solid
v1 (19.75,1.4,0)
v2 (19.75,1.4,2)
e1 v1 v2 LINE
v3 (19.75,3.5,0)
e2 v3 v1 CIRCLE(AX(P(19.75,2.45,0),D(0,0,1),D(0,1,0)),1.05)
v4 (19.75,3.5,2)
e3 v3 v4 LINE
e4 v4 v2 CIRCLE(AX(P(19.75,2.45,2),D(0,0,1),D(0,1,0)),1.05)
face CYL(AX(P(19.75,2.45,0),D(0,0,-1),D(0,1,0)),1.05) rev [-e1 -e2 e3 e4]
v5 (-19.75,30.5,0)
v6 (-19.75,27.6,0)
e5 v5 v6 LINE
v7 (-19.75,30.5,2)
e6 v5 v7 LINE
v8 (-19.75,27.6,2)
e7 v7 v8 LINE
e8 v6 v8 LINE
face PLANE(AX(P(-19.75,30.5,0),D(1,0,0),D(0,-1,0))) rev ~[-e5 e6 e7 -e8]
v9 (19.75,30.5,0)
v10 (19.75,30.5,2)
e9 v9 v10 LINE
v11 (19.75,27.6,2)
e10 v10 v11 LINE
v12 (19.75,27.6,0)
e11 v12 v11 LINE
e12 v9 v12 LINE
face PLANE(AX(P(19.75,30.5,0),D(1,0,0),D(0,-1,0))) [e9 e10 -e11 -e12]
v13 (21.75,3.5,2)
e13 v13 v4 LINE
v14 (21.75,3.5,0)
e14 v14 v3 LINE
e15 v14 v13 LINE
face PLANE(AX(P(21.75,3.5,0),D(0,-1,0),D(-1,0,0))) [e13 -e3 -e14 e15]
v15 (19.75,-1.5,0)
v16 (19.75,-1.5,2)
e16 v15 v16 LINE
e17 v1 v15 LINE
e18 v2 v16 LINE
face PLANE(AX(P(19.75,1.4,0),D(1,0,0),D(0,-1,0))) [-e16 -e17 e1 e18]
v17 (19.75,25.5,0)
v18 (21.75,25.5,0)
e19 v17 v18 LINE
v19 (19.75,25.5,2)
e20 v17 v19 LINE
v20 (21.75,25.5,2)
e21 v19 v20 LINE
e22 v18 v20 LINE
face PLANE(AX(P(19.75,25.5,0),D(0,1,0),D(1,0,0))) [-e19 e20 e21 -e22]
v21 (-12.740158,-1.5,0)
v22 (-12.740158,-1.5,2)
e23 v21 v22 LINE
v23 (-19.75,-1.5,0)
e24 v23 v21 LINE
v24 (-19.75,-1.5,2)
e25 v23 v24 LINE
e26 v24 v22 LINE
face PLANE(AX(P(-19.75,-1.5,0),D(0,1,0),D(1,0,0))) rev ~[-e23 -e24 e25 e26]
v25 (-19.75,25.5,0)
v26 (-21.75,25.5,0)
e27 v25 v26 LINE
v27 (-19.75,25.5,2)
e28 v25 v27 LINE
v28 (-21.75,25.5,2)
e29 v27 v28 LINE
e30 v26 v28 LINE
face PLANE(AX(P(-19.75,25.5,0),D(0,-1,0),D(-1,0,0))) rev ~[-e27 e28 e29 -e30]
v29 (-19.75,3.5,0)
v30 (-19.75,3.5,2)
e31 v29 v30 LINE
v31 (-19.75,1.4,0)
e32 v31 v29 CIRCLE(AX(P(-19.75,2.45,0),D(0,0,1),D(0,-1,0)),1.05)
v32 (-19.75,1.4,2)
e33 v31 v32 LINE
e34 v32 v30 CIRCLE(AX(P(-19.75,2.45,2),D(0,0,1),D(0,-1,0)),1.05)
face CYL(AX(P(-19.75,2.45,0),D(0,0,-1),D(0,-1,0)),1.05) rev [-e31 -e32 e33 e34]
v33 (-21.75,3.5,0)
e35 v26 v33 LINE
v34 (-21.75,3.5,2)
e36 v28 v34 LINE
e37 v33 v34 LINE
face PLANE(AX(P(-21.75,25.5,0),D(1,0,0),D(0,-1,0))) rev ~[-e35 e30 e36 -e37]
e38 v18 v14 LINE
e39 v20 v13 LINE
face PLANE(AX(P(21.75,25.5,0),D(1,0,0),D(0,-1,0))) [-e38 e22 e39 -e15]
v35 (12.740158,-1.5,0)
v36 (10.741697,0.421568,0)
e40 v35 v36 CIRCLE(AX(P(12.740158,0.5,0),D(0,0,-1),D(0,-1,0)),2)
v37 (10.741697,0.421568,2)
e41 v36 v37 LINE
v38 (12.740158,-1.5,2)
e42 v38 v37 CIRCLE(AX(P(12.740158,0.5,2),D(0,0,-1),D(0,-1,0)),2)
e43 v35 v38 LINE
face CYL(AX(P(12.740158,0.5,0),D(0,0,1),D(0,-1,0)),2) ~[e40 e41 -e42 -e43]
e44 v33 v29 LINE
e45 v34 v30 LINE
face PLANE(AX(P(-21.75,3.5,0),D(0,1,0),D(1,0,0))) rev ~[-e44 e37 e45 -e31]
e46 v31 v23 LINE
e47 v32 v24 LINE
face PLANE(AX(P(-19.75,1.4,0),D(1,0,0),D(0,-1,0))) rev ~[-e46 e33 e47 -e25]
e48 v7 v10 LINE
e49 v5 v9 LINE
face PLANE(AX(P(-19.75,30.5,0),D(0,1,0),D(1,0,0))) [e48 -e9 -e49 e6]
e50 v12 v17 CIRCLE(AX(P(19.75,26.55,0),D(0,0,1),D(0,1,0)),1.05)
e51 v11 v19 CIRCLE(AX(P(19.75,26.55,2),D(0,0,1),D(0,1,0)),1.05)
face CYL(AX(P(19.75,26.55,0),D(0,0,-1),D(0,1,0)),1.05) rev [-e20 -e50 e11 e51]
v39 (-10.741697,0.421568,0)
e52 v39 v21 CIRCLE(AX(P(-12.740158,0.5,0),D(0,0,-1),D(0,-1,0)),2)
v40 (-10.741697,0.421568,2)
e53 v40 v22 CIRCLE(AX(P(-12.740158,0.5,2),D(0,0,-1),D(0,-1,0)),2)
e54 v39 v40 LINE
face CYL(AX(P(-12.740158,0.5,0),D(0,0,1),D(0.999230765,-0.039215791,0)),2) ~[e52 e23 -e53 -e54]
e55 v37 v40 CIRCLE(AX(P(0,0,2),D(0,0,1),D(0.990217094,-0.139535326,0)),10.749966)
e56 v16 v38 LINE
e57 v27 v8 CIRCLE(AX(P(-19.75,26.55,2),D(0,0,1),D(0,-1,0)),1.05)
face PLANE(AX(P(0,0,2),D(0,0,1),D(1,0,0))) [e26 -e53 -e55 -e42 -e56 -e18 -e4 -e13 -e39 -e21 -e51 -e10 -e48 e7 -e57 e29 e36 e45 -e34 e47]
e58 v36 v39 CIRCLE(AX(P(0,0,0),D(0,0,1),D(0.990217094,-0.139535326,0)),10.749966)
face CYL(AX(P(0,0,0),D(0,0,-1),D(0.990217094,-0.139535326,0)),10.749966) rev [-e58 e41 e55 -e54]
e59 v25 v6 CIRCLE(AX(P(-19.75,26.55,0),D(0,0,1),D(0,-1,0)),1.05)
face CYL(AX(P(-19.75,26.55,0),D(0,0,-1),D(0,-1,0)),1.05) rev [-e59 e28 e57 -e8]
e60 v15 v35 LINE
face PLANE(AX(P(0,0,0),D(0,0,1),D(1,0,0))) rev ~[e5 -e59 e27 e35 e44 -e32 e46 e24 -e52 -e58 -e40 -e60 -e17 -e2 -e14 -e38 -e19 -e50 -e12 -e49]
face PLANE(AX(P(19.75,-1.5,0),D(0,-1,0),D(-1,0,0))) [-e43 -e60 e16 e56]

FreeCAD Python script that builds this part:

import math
import FreeCAD as App
import Part
import Sketcher
from FreeCAD import Vector


def edges_at(feature, points):
    """Names of the edges that pass closest to the given points."""
    edges = feature.Shape.Edges
    near = lambda p: min(range(len(edges)), key=lambda i: edges[i].distToShape(Part.Vertex(*p))[0])
    return sorted({f"Edge{near(p) + 1}" for p in points})

doc = App.newDocument("Part")
body = doc.addObject("PartDesign::Body", "Body")

# Sketch on XY plane
sketch1 = doc.addObject("Sketcher::SketchObject", "Sketch")
body.addObject(sketch1)
sketch1.AttachmentSupport = (doc.XY_Plane, [""])
sketch1.MapMode = "FlatFace"
sketch1.addGeometry(Part.LineSegment(Vector(19.8, 30.5, 0), Vector(-19.8, 30.5, 0)), False)
sketch1.addGeometry(Part.LineSegment(Vector(-19.8, 30.5, 0), Vector(-19.8, 27.6, 0)), False)
sketch1.addGeometry(Part.ArcOfCircle(Part.Circle(Vector(-19.8, 26.6, 0), Vector(0, 0, 1), 1.1), math.radians(-90), math.radians(90)), False)
sketch1.addGeometry(Part.LineSegment(Vector(-19.8, 25.5, 0), Vector(-21.8, 25.5, 0)), False)
sketch1.addGeometry(Part.LineSegment(Vector(-21.8, 25.5, 0), Vector(-21.8, 3.5, 0)), False)
sketch1.addGeometry(Part.LineSegment(Vector(-21.8, 3.5, 0), Vector(-19.8, 3.5, 0)), False)
sketch1.addGeometry(Part.ArcOfCircle(Part.Circle(Vector(-19.8, 2.5, 0), Vector(0, 0, 1), 1.1), math.radians(-90), math.radians(90)), False)
sketch1.addGeometry(Part.LineSegment(Vector(-19.8, 1.4, 0), Vector(-19.8, -1.5, 0)), False)
sketch1.addGeometry(Part.LineSegment(Vector(-19.8, -1.5, 0), Vector(-10.6, -1.5, 0)), False)
sketch1.addGeometry(Part.ArcOfCircle(Part.Circle(Vector(0, 0, 0), Vector(0, 0, 1), 10.7), math.radians(-8), math.radians(188)), False)
sketch1.addGeometry(Part.LineSegment(Vector(10.6, -1.5, 0), Vector(19.8, -1.5, 0)), False)
sketch1.addGeometry(Part.LineSegment(Vector(19.8, -1.5, 0), Vector(19.8, 1.4, 0)), False)
sketch1.addGeometry(Part.ArcOfCircle(Part.Circle(Vector(19.8, 2.5, 0), Vector(0, 0, 1), 1), math.radians(90), math.radians(270)), False)
sketch1.addGeometry(Part.LineSegment(Vector(19.8, 3.5, 0), Vector(21.8, 3.5, 0)), False)
sketch1.addGeometry(Part.LineSegment(Vector(21.8, 3.5, 0), Vector(21.8, 25.5, 0)), False)
sketch1.addGeometry(Part.LineSegment(Vector(21.8, 25.5, 0), Vector(19.8, 25.5, 0)), False)
sketch1.addGeometry(Part.ArcOfCircle(Part.Circle(Vector(19.8, 26.6, 0), Vector(0, 0, 1), 1.1), math.radians(90), math.radians(270)), False)
sketch1.addGeometry(Part.LineSegment(Vector(19.8, 27.6, 0), Vector(19.8, 30.5, 0)), False)
sketch1.addGeometry(Part.Circle(Vector(-13.5, 1, 0), Vector(0, 0, 1), 1.4), False)
sketch1.addGeometry(Part.Circle(Vector(13.5, 1, 0), Vector(0, 0, 1), 1.4), False)
sketch1.addGeometry(Part.Circle(Vector(-13.5, 28, 0), Vector(0, 0, 1), 1.4), False)
sketch1.addGeometry(Part.Circle(Vector(13.5, 28, 0), Vector(0, 0, 1), 1.4), False)
sketch1.addConstraint(Sketcher.Constraint("Coincident", 0, 2, 1, 1))
sketch1.addConstraint(Sketcher.Constraint("Coincident", 1, 2, 2, 2))
sketch1.addConstraint(Sketcher.Constraint("Tangent", 2, 1, 3, 1))
sketch1.addConstraint(Sketcher.Constraint("Coincident", 3, 2, 4, 1))
sketch1.addConstraint(Sketcher.Constraint("Coincident", 4, 2, 5, 1))
sketch1.addConstraint(Sketcher.Constraint("Tangent", 5, 2, 6, 2))
sketch1.addConstraint(Sketcher.Constraint("Coincident", 6, 1, 7, 1))
sketch1.addConstraint(Sketcher.Constraint("Coincident", 7, 2, 8, 1))
sketch1.addConstraint(Sketcher.Constraint("Coincident", 8, 2, 9, 2))
sketch1.addConstraint(Sketcher.Constraint("Coincident", 9, 1, 10, 1))
sketch1.addConstraint(Sketcher.Constraint("Coincident", 10, 2, 11, 1))
sketch1.addConstraint(Sketcher.Constraint("Coincident", 11, 2, 12, 2))
sketch1.addConstraint(Sketcher.Constraint("Tangent", 12, 1, 13, 1))
sketch1.addConstraint(Sketcher.Constraint("Coincident", 13, 2, 14, 1))
sketch1.addConstraint(Sketcher.Constraint("Coincident", 14, 2, 15, 1))
sketch1.addConstraint(Sketcher.Constraint("Tangent", 15, 2, 16, 2))
sketch1.addConstraint(Sketcher.Constraint("Coincident", 16, 1, 17, 1))
sketch1.addConstraint(Sketcher.Constraint("Coincident", 17, 2, 0, 1))
sketch1.addConstraint(Sketcher.Constraint("Horizontal", 0))
sketch1.addConstraint(Sketcher.Constraint("Vertical", 1))
sketch1.addConstraint(Sketcher.Constraint("Horizontal", 3))
sketch1.addConstraint(Sketcher.Constraint("Vertical", 4))
sketch1.addConstraint(Sketcher.Constraint("Horizontal", 5))
sketch1.addConstraint(Sketcher.Constraint("Vertical", 7))
sketch1.addConstraint(Sketcher.Constraint("Horizontal", 8))
sketch1.addConstraint(Sketcher.Constraint("Horizontal", 10))
sketch1.addConstraint(Sketcher.Constraint("Vertical", 11))
sketch1.addConstraint(Sketcher.Constraint("Horizontal", 13))
sketch1.addConstraint(Sketcher.Constraint("Vertical", 14))
sketch1.addConstraint(Sketcher.Constraint("Horizontal", 15))
sketch1.addConstraint(Sketcher.Constraint("Vertical", 17))
sketch1.addConstraint(Sketcher.Constraint("Coincident", 9, 3, -1, 1))
sketch1.addConstraint(Sketcher.Constraint("Equal", 2, 6))
sketch1.addConstraint(Sketcher.Constraint("Equal", 6, 12))
sketch1.addConstraint(Sketcher.Constraint("Equal", 12, 16))
sketch1.addConstraint(Sketcher.Constraint("Equal", 18, 19))
sketch1.addConstraint(Sketcher.Constraint("Equal", 19, 20))
sketch1.addConstraint(Sketcher.Constraint("Equal", 20, 21))
sketch1.addConstraint(Sketcher.Constraint("Symmetric", 6, 3, 12, 3, -2))
sketch1.addConstraint(Sketcher.Constraint("Symmetric", 2, 3, 16, 3, -2))
sketch1.addConstraint(Sketcher.Constraint("Symmetric", 18, 3, 19, 3, -2))
sketch1.addConstraint(Sketcher.Constraint("Symmetric", 20, 3, 21, 3, -2))
sketch1.addConstraint(Sketcher.Constraint("Symmetric", 7, 2, 10, 2, -2))
sketch1.addConstraint(Sketcher.Constraint("Vertical", 2, 3, 6, 3))
sketch1.addConstraint(Sketcher.Constraint("Vertical", 18, 3, 20, 3))
sketch1.addConstraint(Sketcher.Constraint("Vertical", 6, 3, 0, 2))
sketch1.addConstraint(Sketcher.Constraint("Vertical", 5, 2, 6, 1))
sketch1.addConstraint(Sketcher.Constraint("Vertical", 15, 2, 16, 1))
sketch1.addConstraint(Sketcher.Constraint("Equal", 5, 13))
sketch1.addConstraint(Sketcher.Constraint("Equal", 1, 7))
sketch1.addConstraint(Sketcher.Constraint("Diameter", 18, 2.7))
sketch1.addConstraint(Sketcher.Constraint("DistanceX", 3, 2, 3, 1, 2.0))
sketch1.addConstraint(Sketcher.Constraint("Radius", 2, 1.05))
sketch1.addConstraint(Sketcher.Constraint("Radius", 9, 10.75))
sketch1.addConstraint(Sketcher.Constraint("DistanceX", 0, 2, 0, 1, 39.5))
sketch1.addConstraint(Sketcher.Constraint("DistanceY", -1, 1, 18, 3, 1.0))
sketch1.addConstraint(Sketcher.Constraint("DistanceX", 18, 3, 19, 3, 27.0))
sketch1.addConstraint(Sketcher.Constraint("DistanceY", 18, 3, 20, 3, 27.0))
sketch1.addConstraint(Sketcher.Constraint("DistanceY", 2, 1, 0, 2, 5.0))
sketch1.addConstraint(Sketcher.Constraint("DistanceY", 4, 2, 4, 1, 22.0))
sketch1.addConstraint(Sketcher.Constraint("DistanceY", -1, 1, 0, 2, 30.5))
pad1 = doc.addObject("PartDesign::Pad", "Pad")
body.addObject(pad1)
pad1.Profile = sketch1
pad1.Length = 2
doc.recompute()

fillet = doc.addObject("PartDesign::Fillet", "Fillet")
body.addObject(fillet)
fillet.Base = (pad1, edges_at(pad1, [(-10.645, -1.5, 1), (10.645, -1.5, 1)]))
fillet.Radius = 2

# Sketch on XY plane
sketch2 = doc.addObject("Sketcher::SketchObject", "Sketch001")
body.addObject(sketch2)
sketch2.AttachmentSupport = (doc.XY_Plane, [""])
sketch2.MapMode = "FlatFace"
sketch2.AttachmentOffset = App.Placement(Vector(0, 0, 2), App.Rotation())
sketch2.addGeometry(Part.Circle(Vector(-13.5, 1, 0), Vector(0, 0, 1), 1.4), False)
sketch2.addGeometry(Part.Circle(Vector(13.5, 1, 0), Vector(0, 0, 1), 1.4), False)
sketch2.addGeometry(Part.Circle(Vector(13.5, 28, 0), Vector(0, 0, 1), 1.4), False)
sketch2.addGeometry(Part.Circle(Vector(-13.5, 28, 0), Vector(0, 0, 1), 1.4), False)
sketch2.addConstraint(Sketcher.Constraint("Equal", 0, 1))
sketch2.addConstraint(Sketcher.Constraint("Equal", 1, 2))
sketch2.addConstraint(Sketcher.Constraint("Equal", 2, 3))
sketch2.addConstraint(Sketcher.Constraint("Symmetric", 0, 3, 1, 3, -2))
sketch2.addConstraint(Sketcher.Constraint("Symmetric", 2, 3, 3, 3, -2))
sketch2.addConstraint(Sketcher.Constraint("Vertical", 1, 3, 2, 3))
sketch2.addConstraint(Sketcher.Constraint("Diameter", 0, 2.7))
sketch2.addConstraint(Sketcher.Constraint("DistanceY", -1, 1, 0, 3, 1.0))
sketch2.addConstraint(Sketcher.Constraint("DistanceY", -1, 1, 2, 3, 28.0))
sketch2.addConstraint(Sketcher.Constraint("DistanceX", 0, 3, 1, 3, 27.0))
pad2 = doc.addObject("PartDesign::Pad", "Pad001")
body.addObject(pad2)
pad2.Profile = sketch2
pad2.Length = 2
pad2.Reversed = True

doc.recompute()
